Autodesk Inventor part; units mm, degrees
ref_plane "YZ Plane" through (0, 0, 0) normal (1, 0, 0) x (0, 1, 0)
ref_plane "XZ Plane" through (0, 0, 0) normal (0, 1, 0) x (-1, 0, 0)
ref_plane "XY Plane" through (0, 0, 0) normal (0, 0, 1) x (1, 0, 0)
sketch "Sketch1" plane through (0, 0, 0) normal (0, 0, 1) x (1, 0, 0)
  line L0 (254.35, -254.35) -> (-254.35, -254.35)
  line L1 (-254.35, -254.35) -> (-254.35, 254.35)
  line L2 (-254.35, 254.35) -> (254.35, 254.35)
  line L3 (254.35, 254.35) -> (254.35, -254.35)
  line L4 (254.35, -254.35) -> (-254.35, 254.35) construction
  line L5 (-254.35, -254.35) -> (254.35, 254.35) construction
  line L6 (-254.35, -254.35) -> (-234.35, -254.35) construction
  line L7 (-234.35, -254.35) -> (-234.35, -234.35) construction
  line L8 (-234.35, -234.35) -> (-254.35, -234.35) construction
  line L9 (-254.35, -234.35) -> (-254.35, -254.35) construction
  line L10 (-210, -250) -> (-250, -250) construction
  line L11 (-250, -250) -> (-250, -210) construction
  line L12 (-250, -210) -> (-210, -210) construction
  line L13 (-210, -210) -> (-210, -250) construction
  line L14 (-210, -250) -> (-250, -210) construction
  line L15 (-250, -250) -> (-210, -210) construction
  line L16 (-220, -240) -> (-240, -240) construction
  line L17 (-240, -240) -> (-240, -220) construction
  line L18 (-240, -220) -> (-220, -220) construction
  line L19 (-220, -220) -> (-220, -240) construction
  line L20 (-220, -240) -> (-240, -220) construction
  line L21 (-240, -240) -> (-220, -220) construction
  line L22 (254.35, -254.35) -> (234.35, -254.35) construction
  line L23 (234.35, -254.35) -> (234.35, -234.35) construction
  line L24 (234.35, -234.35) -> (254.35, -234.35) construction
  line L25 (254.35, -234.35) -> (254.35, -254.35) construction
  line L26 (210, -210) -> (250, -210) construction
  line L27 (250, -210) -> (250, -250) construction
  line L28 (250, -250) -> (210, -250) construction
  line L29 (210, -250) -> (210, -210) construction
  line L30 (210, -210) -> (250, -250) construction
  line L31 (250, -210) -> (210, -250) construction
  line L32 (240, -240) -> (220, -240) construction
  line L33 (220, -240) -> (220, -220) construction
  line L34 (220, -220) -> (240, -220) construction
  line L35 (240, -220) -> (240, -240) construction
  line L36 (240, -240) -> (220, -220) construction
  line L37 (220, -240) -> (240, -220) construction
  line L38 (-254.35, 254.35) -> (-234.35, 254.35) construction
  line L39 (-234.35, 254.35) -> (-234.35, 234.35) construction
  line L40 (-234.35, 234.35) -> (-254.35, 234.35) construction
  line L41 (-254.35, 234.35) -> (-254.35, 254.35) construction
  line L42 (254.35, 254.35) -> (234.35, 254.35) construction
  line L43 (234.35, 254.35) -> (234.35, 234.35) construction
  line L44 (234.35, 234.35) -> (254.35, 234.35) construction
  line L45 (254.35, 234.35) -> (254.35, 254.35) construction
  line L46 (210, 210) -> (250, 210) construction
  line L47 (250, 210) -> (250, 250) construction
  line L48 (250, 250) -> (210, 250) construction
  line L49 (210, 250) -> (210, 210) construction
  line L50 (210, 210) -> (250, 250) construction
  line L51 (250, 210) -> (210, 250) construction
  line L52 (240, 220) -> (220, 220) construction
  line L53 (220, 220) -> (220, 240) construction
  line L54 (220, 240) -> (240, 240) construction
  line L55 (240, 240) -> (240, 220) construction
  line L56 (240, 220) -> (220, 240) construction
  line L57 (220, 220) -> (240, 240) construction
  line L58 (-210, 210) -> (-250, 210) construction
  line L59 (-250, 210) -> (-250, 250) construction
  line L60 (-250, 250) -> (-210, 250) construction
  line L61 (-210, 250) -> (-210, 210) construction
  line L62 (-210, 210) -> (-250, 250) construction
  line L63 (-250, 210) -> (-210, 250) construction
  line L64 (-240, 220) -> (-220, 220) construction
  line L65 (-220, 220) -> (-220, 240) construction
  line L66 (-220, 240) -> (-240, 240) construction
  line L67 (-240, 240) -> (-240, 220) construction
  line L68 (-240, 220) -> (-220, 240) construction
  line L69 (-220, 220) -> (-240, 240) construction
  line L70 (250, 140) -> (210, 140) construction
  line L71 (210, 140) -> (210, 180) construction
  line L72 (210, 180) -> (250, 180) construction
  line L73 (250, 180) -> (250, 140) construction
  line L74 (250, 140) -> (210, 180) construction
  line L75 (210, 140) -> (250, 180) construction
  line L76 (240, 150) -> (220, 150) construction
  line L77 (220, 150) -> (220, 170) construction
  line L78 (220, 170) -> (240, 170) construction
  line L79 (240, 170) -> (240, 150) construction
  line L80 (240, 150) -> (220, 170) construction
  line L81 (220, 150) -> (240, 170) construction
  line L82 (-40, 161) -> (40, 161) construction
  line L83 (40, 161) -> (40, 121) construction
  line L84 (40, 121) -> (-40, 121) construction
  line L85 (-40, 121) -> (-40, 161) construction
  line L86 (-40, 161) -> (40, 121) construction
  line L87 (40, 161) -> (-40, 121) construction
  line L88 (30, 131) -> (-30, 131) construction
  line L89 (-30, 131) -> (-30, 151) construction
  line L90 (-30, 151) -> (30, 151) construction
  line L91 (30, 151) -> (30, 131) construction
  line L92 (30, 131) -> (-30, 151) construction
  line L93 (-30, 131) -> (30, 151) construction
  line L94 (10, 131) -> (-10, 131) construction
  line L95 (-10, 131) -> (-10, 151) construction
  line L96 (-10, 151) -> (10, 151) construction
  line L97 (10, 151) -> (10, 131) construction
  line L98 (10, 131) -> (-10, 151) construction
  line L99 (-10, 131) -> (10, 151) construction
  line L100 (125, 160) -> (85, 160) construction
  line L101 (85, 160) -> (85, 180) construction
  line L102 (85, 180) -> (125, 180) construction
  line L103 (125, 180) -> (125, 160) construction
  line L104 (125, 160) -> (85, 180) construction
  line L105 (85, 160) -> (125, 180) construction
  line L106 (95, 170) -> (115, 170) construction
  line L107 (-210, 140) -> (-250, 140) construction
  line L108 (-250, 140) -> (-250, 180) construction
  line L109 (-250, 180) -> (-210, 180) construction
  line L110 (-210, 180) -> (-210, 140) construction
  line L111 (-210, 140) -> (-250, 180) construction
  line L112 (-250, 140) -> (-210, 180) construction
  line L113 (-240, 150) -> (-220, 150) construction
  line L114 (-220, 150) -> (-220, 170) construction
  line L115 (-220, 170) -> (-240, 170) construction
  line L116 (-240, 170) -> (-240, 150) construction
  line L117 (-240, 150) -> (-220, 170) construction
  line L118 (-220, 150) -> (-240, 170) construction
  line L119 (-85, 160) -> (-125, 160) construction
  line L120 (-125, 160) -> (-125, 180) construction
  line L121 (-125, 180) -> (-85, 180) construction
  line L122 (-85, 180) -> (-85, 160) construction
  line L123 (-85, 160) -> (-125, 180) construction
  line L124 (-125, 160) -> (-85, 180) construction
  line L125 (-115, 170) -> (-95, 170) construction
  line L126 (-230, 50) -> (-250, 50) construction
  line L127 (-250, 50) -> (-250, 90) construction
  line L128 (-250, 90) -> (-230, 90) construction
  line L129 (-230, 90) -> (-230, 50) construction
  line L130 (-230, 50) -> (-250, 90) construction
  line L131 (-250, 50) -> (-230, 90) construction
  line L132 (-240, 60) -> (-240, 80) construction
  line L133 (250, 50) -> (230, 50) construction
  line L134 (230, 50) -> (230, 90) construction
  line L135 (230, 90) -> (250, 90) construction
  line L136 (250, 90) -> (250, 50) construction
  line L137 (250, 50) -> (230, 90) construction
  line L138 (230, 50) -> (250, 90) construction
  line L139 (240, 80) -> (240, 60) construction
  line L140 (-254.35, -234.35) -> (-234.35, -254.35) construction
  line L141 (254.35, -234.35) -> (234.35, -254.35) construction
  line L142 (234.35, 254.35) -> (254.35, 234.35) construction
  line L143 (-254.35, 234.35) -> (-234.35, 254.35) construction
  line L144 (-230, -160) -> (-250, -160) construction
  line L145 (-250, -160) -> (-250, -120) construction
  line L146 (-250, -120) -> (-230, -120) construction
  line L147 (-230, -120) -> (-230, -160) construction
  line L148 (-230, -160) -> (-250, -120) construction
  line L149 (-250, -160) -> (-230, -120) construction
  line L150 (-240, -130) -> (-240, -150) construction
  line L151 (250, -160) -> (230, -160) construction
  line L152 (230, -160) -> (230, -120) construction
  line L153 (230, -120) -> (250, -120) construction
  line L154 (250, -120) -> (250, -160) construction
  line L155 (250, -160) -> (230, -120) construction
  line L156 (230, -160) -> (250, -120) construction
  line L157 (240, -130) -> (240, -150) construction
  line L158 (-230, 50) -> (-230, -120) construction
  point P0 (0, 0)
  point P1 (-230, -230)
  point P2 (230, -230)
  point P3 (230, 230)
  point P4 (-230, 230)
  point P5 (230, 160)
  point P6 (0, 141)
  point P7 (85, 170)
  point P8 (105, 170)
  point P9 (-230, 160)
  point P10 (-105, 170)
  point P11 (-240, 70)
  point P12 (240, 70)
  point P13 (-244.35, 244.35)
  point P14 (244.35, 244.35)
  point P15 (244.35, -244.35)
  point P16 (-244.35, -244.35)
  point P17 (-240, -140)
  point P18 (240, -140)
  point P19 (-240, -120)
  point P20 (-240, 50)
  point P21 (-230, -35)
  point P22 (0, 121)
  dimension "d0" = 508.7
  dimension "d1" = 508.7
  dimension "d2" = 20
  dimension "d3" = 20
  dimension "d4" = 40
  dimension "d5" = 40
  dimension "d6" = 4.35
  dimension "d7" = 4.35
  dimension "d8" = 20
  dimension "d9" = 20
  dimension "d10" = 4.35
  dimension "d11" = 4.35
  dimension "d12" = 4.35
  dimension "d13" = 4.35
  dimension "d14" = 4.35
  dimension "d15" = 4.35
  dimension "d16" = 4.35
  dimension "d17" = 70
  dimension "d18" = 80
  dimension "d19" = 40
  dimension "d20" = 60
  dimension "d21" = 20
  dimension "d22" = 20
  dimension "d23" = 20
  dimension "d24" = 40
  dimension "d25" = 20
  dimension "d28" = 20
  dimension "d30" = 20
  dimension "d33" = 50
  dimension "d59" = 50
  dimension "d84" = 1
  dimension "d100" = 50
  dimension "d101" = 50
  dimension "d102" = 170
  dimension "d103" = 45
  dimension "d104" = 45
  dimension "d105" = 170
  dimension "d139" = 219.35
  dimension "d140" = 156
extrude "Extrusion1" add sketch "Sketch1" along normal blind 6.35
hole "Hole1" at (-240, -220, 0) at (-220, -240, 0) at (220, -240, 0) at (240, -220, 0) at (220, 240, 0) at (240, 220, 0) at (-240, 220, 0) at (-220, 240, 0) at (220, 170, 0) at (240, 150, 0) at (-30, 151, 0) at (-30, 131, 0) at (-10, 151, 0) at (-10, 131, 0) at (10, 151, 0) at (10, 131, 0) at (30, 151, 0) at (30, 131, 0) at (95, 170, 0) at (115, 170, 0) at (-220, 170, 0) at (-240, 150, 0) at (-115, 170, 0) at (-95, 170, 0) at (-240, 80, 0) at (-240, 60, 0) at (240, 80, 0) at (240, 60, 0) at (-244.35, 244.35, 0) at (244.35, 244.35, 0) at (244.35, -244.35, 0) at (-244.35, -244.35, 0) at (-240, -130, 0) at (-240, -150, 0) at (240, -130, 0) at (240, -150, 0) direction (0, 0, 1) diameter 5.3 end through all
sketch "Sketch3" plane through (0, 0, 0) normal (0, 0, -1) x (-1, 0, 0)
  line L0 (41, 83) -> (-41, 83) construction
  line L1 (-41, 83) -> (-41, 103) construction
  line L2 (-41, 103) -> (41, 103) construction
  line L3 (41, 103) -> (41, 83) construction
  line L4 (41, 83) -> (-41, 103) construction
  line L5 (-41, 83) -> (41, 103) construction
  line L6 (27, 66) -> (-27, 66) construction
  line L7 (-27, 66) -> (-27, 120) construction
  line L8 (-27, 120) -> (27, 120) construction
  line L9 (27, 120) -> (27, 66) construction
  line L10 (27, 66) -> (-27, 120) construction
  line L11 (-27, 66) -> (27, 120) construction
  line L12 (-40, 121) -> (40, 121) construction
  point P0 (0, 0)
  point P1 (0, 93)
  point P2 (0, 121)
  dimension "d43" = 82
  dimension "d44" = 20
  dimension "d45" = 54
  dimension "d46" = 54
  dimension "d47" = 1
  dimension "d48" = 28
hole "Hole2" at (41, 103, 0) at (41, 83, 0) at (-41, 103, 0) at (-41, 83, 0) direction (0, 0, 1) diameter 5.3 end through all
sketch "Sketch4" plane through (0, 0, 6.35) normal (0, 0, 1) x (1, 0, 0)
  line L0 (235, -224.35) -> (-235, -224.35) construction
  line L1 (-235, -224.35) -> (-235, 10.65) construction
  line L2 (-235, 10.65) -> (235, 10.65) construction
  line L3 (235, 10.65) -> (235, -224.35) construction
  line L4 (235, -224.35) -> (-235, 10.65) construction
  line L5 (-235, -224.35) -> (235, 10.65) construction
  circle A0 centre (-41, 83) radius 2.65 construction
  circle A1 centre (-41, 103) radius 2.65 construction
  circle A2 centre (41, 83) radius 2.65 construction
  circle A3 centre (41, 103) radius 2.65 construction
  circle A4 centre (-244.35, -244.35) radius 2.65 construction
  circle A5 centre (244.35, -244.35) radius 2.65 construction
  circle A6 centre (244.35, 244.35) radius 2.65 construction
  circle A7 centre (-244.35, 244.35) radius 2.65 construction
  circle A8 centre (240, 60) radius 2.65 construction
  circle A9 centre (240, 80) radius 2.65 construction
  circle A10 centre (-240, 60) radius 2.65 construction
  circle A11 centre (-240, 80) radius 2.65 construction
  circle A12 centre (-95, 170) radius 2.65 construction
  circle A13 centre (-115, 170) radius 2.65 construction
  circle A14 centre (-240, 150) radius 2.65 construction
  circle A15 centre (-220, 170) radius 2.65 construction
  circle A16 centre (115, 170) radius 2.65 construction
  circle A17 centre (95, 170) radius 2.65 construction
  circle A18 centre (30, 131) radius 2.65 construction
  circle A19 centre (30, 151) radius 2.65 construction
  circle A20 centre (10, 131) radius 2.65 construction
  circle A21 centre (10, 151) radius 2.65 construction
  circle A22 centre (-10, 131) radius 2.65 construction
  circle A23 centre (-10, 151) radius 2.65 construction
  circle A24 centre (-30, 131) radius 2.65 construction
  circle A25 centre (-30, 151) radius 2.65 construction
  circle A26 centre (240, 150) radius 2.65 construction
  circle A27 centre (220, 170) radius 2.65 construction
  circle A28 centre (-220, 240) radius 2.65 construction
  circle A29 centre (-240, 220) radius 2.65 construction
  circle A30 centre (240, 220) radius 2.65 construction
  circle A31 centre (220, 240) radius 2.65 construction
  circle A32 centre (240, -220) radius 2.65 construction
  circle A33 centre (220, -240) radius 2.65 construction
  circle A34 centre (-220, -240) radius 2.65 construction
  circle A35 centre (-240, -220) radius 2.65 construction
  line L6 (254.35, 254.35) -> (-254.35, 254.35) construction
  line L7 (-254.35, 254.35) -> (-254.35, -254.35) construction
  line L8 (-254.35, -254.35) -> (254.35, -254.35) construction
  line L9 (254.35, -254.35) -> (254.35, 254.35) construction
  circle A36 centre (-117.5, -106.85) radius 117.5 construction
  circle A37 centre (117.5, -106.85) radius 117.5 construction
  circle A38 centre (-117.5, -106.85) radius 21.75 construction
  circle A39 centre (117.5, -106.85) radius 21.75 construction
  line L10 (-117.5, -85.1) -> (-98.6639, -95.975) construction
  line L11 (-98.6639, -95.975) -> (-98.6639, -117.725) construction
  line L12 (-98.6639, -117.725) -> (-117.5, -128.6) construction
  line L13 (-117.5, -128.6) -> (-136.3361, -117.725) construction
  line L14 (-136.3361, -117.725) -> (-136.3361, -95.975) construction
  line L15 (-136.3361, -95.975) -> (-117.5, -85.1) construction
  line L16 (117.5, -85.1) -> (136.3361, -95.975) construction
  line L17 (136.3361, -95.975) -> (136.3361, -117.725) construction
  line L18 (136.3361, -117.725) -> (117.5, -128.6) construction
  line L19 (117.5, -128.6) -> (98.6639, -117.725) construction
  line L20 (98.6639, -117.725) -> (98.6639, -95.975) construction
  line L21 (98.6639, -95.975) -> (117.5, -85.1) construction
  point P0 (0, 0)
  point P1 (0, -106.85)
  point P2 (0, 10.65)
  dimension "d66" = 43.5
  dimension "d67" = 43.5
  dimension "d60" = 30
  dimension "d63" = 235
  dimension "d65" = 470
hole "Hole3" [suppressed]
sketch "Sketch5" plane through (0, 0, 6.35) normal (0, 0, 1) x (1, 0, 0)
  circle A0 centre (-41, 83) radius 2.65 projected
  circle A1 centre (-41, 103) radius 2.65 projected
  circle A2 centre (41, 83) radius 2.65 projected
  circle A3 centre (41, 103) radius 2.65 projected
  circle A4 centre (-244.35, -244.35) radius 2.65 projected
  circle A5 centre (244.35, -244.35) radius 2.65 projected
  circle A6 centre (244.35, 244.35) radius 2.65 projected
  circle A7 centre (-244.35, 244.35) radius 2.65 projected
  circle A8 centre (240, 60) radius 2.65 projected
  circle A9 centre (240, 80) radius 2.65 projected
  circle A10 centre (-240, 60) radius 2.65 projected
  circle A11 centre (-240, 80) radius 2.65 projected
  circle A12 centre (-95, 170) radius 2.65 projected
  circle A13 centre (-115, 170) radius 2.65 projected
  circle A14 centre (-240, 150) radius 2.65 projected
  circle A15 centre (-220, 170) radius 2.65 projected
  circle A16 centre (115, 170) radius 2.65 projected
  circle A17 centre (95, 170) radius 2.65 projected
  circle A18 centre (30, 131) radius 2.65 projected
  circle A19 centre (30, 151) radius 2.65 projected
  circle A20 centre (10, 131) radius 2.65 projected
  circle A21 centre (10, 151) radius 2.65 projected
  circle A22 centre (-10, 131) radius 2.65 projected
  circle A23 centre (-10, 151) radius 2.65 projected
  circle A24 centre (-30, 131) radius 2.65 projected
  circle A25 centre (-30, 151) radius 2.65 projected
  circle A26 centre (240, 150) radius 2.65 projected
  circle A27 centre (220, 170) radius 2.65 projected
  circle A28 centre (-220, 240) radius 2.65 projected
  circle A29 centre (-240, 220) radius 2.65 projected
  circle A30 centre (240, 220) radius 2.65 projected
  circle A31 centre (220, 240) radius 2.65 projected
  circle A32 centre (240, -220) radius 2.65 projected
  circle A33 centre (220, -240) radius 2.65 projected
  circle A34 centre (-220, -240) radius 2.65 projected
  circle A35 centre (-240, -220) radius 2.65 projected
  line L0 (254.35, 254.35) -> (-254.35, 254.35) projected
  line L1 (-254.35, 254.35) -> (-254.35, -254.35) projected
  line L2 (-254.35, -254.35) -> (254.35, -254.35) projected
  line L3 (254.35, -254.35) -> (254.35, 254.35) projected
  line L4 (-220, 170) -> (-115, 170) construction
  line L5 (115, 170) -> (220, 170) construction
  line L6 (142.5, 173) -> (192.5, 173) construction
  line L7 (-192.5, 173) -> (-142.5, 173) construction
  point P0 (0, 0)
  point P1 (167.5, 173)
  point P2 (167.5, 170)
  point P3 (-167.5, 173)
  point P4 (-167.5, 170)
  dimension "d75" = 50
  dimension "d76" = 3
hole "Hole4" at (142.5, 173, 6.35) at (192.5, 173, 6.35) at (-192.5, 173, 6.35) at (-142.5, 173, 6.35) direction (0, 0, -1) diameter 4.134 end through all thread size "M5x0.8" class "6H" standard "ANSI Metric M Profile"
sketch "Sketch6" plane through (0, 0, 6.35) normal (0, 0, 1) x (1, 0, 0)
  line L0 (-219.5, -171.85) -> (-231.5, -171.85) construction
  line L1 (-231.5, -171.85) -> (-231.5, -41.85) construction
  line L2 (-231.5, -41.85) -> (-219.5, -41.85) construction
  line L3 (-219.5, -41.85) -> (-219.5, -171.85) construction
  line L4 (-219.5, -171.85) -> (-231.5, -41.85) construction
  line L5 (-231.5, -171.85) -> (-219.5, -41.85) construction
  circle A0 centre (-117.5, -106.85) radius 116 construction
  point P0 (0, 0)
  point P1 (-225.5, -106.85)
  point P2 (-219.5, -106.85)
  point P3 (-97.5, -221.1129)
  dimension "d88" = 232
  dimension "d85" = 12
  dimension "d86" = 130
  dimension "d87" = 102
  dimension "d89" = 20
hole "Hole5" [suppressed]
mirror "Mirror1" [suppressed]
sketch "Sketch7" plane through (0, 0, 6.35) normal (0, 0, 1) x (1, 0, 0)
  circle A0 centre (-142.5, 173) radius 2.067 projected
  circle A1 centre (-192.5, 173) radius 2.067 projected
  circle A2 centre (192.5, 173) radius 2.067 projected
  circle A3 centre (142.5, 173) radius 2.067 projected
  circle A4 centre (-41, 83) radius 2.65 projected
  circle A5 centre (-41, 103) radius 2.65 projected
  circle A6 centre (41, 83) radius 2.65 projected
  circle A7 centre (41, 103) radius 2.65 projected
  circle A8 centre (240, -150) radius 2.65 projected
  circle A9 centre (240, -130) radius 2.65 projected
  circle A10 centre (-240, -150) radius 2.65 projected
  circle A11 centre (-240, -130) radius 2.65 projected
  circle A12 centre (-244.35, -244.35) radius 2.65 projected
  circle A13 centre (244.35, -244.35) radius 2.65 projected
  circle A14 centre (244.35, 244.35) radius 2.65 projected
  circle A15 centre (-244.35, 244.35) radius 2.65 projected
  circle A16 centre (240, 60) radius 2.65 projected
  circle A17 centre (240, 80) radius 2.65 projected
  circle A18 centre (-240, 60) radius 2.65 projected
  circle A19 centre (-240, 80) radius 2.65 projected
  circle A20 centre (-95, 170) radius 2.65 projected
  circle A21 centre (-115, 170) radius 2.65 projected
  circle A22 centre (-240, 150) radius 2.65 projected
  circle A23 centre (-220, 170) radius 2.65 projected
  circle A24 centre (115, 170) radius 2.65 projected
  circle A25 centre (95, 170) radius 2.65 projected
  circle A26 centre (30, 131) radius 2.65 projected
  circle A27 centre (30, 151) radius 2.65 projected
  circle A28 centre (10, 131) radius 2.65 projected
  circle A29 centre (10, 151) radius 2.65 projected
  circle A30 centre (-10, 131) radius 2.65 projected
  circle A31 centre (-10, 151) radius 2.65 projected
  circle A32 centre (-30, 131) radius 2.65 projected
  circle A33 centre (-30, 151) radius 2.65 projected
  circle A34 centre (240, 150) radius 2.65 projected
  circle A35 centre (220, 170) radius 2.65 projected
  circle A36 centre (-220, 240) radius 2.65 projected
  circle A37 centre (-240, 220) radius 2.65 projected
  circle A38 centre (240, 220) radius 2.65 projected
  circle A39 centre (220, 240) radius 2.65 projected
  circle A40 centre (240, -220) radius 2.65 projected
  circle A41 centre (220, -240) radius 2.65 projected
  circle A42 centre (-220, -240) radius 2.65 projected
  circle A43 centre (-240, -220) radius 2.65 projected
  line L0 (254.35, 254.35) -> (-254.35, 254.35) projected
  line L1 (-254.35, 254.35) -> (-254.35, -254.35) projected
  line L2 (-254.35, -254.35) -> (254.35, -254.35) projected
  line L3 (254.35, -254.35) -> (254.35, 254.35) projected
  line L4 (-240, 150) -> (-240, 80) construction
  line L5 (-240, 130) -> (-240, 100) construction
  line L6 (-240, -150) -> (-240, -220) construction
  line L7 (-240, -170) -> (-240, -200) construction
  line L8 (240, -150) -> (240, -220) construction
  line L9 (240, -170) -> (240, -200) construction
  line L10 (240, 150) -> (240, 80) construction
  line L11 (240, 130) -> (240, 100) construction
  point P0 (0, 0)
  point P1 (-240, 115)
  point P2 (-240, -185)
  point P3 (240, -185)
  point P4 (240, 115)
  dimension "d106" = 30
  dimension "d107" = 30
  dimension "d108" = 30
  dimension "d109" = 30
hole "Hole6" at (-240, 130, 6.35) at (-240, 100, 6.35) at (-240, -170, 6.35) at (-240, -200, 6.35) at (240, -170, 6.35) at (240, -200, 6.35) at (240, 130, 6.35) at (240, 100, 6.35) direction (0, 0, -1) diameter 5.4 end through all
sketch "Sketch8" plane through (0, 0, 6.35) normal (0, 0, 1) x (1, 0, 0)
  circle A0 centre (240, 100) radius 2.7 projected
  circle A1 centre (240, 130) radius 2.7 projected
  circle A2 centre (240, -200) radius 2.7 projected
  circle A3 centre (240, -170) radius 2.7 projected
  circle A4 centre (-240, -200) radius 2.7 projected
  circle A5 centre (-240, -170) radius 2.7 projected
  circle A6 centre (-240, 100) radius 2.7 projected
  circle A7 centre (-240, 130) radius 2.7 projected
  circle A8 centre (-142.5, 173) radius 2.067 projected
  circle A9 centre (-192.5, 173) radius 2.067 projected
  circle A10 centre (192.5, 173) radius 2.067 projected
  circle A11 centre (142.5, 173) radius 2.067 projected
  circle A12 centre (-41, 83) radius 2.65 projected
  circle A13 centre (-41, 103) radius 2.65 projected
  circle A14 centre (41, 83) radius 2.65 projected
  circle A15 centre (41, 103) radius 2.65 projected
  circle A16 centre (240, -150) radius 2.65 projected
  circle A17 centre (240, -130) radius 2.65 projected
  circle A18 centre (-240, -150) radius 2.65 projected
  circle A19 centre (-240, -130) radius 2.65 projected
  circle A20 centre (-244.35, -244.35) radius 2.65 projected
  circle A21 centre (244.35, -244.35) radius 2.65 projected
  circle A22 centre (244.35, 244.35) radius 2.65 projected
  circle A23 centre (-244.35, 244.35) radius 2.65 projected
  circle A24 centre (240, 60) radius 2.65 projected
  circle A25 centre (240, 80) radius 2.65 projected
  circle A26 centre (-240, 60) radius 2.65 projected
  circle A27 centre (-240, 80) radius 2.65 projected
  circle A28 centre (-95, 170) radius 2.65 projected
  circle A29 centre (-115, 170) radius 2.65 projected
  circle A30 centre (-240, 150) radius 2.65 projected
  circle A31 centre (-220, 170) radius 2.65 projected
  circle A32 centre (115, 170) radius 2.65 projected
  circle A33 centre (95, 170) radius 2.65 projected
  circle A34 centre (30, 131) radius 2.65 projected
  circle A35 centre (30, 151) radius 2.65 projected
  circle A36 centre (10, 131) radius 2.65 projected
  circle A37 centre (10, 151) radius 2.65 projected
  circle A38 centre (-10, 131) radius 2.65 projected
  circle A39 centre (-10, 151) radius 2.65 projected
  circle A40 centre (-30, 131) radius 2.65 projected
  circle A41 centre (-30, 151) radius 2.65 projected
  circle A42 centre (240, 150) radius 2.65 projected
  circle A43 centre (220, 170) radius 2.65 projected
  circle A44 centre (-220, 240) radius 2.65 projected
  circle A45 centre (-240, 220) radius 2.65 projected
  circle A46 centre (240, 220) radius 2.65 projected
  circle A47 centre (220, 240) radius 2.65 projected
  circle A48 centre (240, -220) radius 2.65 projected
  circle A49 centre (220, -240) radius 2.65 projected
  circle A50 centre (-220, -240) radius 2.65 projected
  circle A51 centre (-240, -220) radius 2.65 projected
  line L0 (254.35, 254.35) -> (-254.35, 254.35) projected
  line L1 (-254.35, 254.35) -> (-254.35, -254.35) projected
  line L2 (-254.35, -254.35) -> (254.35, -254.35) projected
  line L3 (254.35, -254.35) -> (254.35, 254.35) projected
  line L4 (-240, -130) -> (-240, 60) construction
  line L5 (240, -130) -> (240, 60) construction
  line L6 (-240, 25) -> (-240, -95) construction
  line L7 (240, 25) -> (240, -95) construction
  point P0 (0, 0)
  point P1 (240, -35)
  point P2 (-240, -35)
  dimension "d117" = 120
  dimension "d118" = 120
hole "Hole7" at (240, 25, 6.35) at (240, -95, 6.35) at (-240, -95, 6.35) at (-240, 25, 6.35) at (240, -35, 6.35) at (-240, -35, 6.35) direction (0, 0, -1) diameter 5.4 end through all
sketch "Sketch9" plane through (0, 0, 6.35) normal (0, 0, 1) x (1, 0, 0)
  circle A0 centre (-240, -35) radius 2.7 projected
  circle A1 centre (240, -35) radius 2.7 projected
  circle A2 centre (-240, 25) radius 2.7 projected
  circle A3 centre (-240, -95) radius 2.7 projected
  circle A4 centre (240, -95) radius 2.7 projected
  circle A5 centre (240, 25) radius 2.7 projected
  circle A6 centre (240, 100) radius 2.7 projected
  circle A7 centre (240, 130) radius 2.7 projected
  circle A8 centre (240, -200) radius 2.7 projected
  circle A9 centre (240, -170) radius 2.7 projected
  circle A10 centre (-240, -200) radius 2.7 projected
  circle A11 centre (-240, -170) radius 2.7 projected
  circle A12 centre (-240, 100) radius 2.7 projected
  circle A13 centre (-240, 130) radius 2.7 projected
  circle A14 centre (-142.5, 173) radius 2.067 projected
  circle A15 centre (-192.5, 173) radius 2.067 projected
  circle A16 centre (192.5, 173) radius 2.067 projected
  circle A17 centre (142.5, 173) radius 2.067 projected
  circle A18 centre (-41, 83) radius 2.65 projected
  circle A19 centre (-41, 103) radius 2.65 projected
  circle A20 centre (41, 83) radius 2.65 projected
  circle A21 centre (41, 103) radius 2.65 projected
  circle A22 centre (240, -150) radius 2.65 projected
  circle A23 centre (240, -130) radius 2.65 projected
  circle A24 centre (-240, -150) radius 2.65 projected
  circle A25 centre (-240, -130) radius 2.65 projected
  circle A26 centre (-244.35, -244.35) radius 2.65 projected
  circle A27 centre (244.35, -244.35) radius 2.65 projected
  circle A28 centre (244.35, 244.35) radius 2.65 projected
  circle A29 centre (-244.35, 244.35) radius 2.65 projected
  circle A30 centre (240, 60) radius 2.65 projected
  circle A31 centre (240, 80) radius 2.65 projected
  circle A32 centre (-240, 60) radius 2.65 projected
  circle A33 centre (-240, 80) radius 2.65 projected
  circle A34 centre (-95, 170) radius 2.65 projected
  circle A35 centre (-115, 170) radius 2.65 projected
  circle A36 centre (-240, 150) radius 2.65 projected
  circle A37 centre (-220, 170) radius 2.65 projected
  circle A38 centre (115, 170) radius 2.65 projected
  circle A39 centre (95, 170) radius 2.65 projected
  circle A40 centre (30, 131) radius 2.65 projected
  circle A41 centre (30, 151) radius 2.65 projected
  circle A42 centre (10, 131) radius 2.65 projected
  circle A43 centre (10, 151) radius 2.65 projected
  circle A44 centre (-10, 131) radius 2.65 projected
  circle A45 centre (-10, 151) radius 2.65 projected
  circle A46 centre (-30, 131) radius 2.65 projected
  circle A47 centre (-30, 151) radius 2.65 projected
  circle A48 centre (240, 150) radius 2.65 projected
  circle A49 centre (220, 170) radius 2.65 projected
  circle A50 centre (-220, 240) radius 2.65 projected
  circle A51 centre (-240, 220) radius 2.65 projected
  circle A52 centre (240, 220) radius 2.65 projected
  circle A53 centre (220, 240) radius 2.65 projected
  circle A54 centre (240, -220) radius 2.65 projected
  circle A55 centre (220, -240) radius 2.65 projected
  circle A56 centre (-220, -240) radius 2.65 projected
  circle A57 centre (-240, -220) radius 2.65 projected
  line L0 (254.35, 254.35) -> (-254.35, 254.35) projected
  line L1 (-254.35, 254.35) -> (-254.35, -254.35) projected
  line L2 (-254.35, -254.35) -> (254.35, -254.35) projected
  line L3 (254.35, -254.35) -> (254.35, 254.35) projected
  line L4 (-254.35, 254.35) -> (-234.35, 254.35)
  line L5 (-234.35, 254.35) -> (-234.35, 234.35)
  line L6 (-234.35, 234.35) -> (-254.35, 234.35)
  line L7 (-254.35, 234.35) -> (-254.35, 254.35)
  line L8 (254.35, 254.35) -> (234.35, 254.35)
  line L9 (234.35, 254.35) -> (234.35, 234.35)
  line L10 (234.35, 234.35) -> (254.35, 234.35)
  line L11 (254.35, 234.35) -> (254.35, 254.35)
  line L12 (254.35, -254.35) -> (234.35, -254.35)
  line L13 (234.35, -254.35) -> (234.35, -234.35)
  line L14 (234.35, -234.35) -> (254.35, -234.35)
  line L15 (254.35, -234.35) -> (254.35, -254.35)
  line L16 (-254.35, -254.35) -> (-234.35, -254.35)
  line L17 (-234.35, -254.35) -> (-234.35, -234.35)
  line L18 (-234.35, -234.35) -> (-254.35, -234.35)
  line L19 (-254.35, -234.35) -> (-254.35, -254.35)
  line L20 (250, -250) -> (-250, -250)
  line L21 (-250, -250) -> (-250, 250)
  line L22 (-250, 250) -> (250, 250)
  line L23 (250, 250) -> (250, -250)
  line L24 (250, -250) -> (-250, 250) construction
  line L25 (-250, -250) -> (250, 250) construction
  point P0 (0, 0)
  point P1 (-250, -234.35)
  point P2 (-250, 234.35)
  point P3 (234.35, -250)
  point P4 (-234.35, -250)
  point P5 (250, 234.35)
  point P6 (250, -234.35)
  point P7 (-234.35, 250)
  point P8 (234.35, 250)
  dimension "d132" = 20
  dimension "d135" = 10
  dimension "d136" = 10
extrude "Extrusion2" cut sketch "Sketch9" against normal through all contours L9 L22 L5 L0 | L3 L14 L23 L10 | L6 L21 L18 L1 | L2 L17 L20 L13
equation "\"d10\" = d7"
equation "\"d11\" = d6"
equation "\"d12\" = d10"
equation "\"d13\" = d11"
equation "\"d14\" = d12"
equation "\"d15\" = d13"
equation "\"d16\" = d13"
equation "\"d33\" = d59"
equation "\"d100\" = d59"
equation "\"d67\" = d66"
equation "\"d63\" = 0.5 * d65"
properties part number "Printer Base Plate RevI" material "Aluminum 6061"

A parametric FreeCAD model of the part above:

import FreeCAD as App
import Part
import Sketcher


def add_polygon(sketch, points):
    """Adds a closed chain of lines whose ends are joined by coincident constraints."""
    first, n = sketch.GeometryCount, len(points)
    for a, b in zip(points, points[1:] + points[:1]):
        sketch.addGeometry(Part.LineSegment(App.Vector(*a, 0), App.Vector(*b, 0)), False)
    for i in range(n):
        sketch.addConstraint(Sketcher.Constraint("Coincident", first + i, 2, first + (i + 1) % n, 1))

doc = App.newDocument("Part")
body = doc.addObject("PartDesign::Body", "Body")

sketch1 = body.newObject("Sketcher::SketchObject", "Sketch")
sketch1.AttachmentSupport = (doc.getObject("XY_Plane"), [""])
sketch1.MapMode = "FlatFace"
add_polygon(sketch1, [(-254, -254), (254, -254), (254, 254), (-254, 254)])
sketch1.addConstraint([
    Sketcher.Constraint("Horizontal", 0),
    Sketcher.Constraint("Vertical", 1),
    Sketcher.Constraint("Horizontal", 2),
    Sketcher.Constraint("Vertical", 3),
    Sketcher.Constraint("Symmetric", 0, 2, 2, 2, -1, 1),
    Sketcher.Constraint("Equal", 2, 1),
    Sketcher.Constraint("DistanceX", 0, 1, 0, 2, 508.7),
])
pad1 = body.newObject("PartDesign::Pad", "Pad")
pad1.Profile = sketch1
pad1.Length = 6.35

sketch2 = body.newObject("Sketcher::SketchObject", "Sketch001")
sketch2.AttachmentSupport = (doc.getObject("XY_Plane"), [""])
sketch2.MapMode = "FlatFace"
sketch2.addGeometry([
    Part.Circle(App.Vector(-240, -220, 0), App.Vector(0, 0, 1), 2.6),
    Part.Circle(App.Vector(-220, -240, 0), App.Vector(0, 0, 1), 2.6),
    Part.Circle(App.Vector(220, -240, 0), App.Vector(0, 0, 1), 2.6),
    Part.Circle(App.Vector(240, -220, 0), App.Vector(0, 0, 1), 2.6),
    Part.Circle(App.Vector(220, 240, 0), App.Vector(0, 0, 1), 2.6),
    Part.Circle(App.Vector(240, 220, 0), App.Vector(0, 0, 1), 2.6),
    Part.Circle(App.Vector(-240, 220, 0), App.Vector(0, 0, 1), 2.6),
    Part.Circle(App.Vector(-220, 240, 0), App.Vector(0, 0, 1), 2.6),
    Part.Circle(App.Vector(220, 170, 0), App.Vector(0, 0, 1), 2.6),
    Part.Circle(App.Vector(240, 150, 0), App.Vector(0, 0, 1), 2.6),
    Part.Circle(App.Vector(-30, 151, 0), App.Vector(0, 0, 1), 2.6),
    Part.Circle(App.Vector(-30, 131, 0), App.Vector(0, 0, 1), 2.6),
    Part.Circle(App.Vector(-10, 151, 0), App.Vector(0, 0, 1), 2.6),
    Part.Circle(App.Vector(-10, 131, 0), App.Vector(0, 0, 1), 2.6),
    Part.Circle(App.Vector(10, 151, 0), App.Vector(0, 0, 1), 2.6),
    Part.Circle(App.Vector(10, 131, 0), App.Vector(0, 0, 1), 2.6),
    Part.Circle(App.Vector(30, 151, 0), App.Vector(0, 0, 1), 2.6),
    Part.Circle(App.Vector(30, 131, 0), App.Vector(0, 0, 1), 2.6),
    Part.Circle(App.Vector(95, 170, 0), App.Vector(0, 0, 1), 2.6),
    Part.Circle(App.Vector(115, 170, 0), App.Vector(0, 0, 1), 2.6),
    Part.Circle(App.Vector(-220, 170, 0), App.Vector(0, 0, 1), 2.6),
    Part.Circle(App.Vector(-240, 150, 0), App.Vector(0, 0, 1), 2.6),
    Part.Circle(App.Vector(-115, 170, 0), App.Vector(0, 0, 1), 2.6),
    Part.Circle(App.Vector(-95, 170, 0), App.Vector(0, 0, 1), 2.6),
    Part.Circle(App.Vector(-240, 80, 0), App.Vector(0, 0, 1), 2.6),
    Part.Circle(App.Vector(-240, 60, 0), App.Vector(0, 0, 1), 2.6),
    Part.Circle(App.Vector(240, 80, 0), App.Vector(0, 0, 1), 2.6),
    Part.Circle(App.Vector(240, 60, 0), App.Vector(0, 0, 1), 2.6),
    Part.Circle(App.Vector(-244.3, 244.3, 0), App.Vector(0, 0, 1), 2.6),
    Part.Circle(App.Vector(244.3, 244.3, 0), App.Vector(0, 0, 1), 2.6),
    Part.Circle(App.Vector(244.3, -244.3, 0), App.Vector(0, 0, 1), 2.6),
    Part.Circle(App.Vector(-244.3, -244.3, 0), App.Vector(0, 0, 1), 2.6),
    Part.Circle(App.Vector(-240, -130, 0), App.Vector(0, 0, 1), 2.6),
    Part.Circle(App.Vector(-240, -150, 0), App.Vector(0, 0, 1), 2.6),
    Part.Circle(App.Vector(240, -130, 0), App.Vector(0, 0, 1), 2.6),
    Part.Circle(App.Vector(240, -150, 0), App.Vector(0, 0, 1), 2.6),
], False)
sketch2.addConstraint([
    Sketcher.Constraint("Equal", 0, 1),
    Sketcher.Constraint("Equal", 1, 2),
    Sketcher.Constraint("Equal", 2, 3),
    Sketcher.Constraint("Equal", 3, 4),
    Sketcher.Constraint("Equal", 4, 5),
    Sketcher.Constraint("Equal", 5, 6),
    Sketcher.Constraint("Equal", 6, 7),
    Sketcher.Constraint("Equal", 7, 8),
    Sketcher.Constraint("Equal", 8, 9),
    Sketcher.Constraint("Equal", 9, 10),
    Sketcher.Constraint("Equal", 10, 11),
    Sketcher.Constraint("Equal", 11, 12),
    Sketcher.Constraint("Equal", 12, 13),
    Sketcher.Constraint("Equal", 13, 14),
    Sketcher.Constraint("Equal", 14, 15),
    Sketcher.Constraint("Equal", 15, 16),
    Sketcher.Constraint("Equal", 16, 17),
    Sketcher.Constraint("Equal", 17, 18),
    Sketcher.Constraint("Equal", 18, 19),
    Sketcher.Constraint("Equal", 19, 20),
    Sketcher.Constraint("Equal", 20, 21),
    Sketcher.Constraint("Equal", 21, 22),
    Sketcher.Constraint("Equal", 22, 23),
    Sketcher.Constraint("Equal", 23, 24),
    Sketcher.Constraint("Equal", 24, 25),
    Sketcher.Constraint("Equal", 25, 26),
    Sketcher.Constraint("Equal", 26, 27),
    Sketcher.Constraint("Equal", 27, 28),
    Sketcher.Constraint("Equal", 28, 29),
    Sketcher.Constraint("Equal", 29, 30),
    Sketcher.Constraint("Equal", 30, 31),
    Sketcher.Constraint("Equal", 31, 32),
    Sketcher.Constraint("Equal", 32, 33),
    Sketcher.Constraint("Equal", 33, 34),
    Sketcher.Constraint("Equal", 34, 35),
    Sketcher.Constraint("Symmetric", 1, 3, 4, 3, -1, 1),
    Sketcher.Constraint("Symmetric", 0, 3, 5, 3, -1, 1),
    Sketcher.Constraint("Symmetric", 3, 3, 6, 3, -1, 1),
    Sketcher.Constraint("Symmetric", 2, 3, 7, 3, -1, 1),
    Sketcher.Constraint("Symmetric", 28, 3, 30, 3, -1, 1),
    Sketcher.Constraint("Symmetric", 29, 3, 31, 3, -1, 1),
    Sketcher.Constraint("Symmetric", 9, 3, 33, 3, -1, 1),
    Sketcher.Constraint("Symmetric", 21, 3, 35, 3, -1, 1),
    Sketcher.Constraint("Symmetric", 1, 3, 2, 3, -2),
    Sketcher.Constraint("Symmetric", 0, 3, 3, 3, -2),
    Sketcher.Constraint("Symmetric", 12, 3, 14, 3, -2),
    Sketcher.Constraint("Symmetric", 13, 3, 15, 3, -2),
    Sketcher.Constraint("Symmetric", 10, 3, 16, 3, -2),
    Sketcher.Constraint("Symmetric", 11, 3, 17, 3, -2),
    Sketcher.Constraint("Symmetric", 8, 3, 20, 3, -2),
    Sketcher.Constraint("Symmetric", 9, 3, 21, 3, -2),
    Sketcher.Constraint("Symmetric", 19, 3, 22, 3, -2),
    Sketcher.Constraint("Symmetric", 18, 3, 23, 3, -2),
    Sketcher.Constraint("Symmetric", 24, 3, 26, 3, -2),
    Sketcher.Constraint("Symmetric", 25, 3, 27, 3, -2),
    Sketcher.Constraint("Symmetric", 28, 3, 29, 3, -2),
    Sketcher.Constraint("Symmetric", 32, 3, 34, 3, -2),
    Sketcher.Constraint("Horizontal", 10, 3, 12, 3),
    Sketcher.Constraint("Horizontal", 11, 3, 13, 3),
    Sketcher.Constraint("Horizontal", 8, 3, 18, 3),
    Sketcher.Constraint("Horizontal", 18, 3, 19, 3),
    Sketcher.Constraint("Vertical", 4, 3, 8, 3),
    Sketcher.Constraint("Vertical", 5, 3, 9, 3),
    Sketcher.Constraint("Vertical", 10, 3, 11, 3),
    Sketcher.Constraint("Vertical", 12, 3, 13, 3),
    Sketcher.Constraint("Vertical", 21, 3, 24, 3),
    Sketcher.Constraint("Vertical", 24, 3, 25, 3),
    Sketcher.Constraint("Vertical", 25, 3, 32, 3),
    Sketcher.Constraint("Diameter", 0, 5.3),
    Sketcher.Constraint("DistanceX", 0, 3, -1, 1, 240.0),
    Sketcher.Constraint("DistanceY", 0, 3, -1, 1, 220.0),
    Sketcher.Constraint("DistanceX", 1, 3, -1, 1, 220.0),
    Sketcher.Constraint("DistanceY", 1, 3, -1, 1, 240.0),
    Sketcher.Constraint("DistanceY", -1, 1, 8, 3, 170.0),
    Sketcher.Constraint("DistanceY", -1, 1, 9, 3, 150.0),
    Sketcher.Constraint("DistanceX", 10, 3, -1, 1, 30.0),
    Sketcher.Constraint("DistanceY", -1, 1, 10, 3, 151.0),
    Sketcher.Constraint("DistanceY", -1, 1, 11, 3, 131.0),
    Sketcher.Constraint("DistanceX", 12, 3, -1, 1, 10.0),
    Sketcher.Constraint("DistanceX", -1, 1, 18, 3, 95.0),
    Sketcher.Constraint("DistanceX", -1, 1, 19, 3, 115.0),
    Sketcher.Constraint("DistanceY", -1, 1, 24, 3, 80.0),
    Sketcher.Constraint("DistanceY", -1, 1, 25, 3, 60.0),
    Sketcher.Constraint("DistanceY", 32, 3, -1, 1, 130.0),
    Sketcher.Constraint("DistanceX", 28, 3, -1, 1, 244.35),
    Sketcher.Constraint("DistanceY", -1, 1, 28, 3, 244.35),
])
doc.recompute()
hole = body.newObject("PartDesign::Hole", "Hole")
hole.Profile = sketch2
hole.ThreadType = "None"
hole.Diameter = 5.3
hole.DepthType = "ThroughAll"
hole.Reversed = True

sketch3 = body.newObject("Sketcher::SketchObject", "Sketch002")
sketch3.AttachmentSupport = (doc.getObject("XY_Plane"), [""])
sketch3.MapMode = "FlatFace"
sketch3.addGeometry([
    Part.Circle(App.Vector(41, 103, 0), App.Vector(0, 0, 1), 2.6),
    Part.Circle(App.Vector(41, 83, 0), App.Vector(0, 0, 1), 2.6),
    Part.Circle(App.Vector(-41, 103, 0), App.Vector(0, 0, 1), 2.6),
    Part.Circle(App.Vector(-41, 83, 0), App.Vector(0, 0, 1), 2.6),
], False)
sketch3.addConstraint([
    Sketcher.Constraint("Equal", 0, 1),
    Sketcher.Constraint("Equal", 1, 2),
    Sketcher.Constraint("Equal", 2, 3),
    Sketcher.Constraint("Symmetric", 0, 3, 2, 3, -2),
    Sketcher.Constraint("Symmetric", 1, 3, 3, 3, -2),
    Sketcher.Constraint("Vertical", 0, 3, 1, 3),
    Sketcher.Constraint("Diameter", 0, 5.3),
    Sketcher.Constraint("DistanceX", -1, 1, 0, 3, 41.0),
    Sketcher.Constraint("DistanceY", -1, 1, 0, 3, 103.0),
    Sketcher.Constraint("DistanceY", -1, 1, 1, 3, 83.0),
])
doc.recompute()
hole2 = body.newObject("PartDesign::Hole", "Hole001")
hole2.Profile = sketch3
hole2.ThreadType = "None"
hole2.Diameter = 5.3
hole2.DepthType = "ThroughAll"
hole2.Reversed = True

sketch4 = body.newObject("Sketcher::SketchObject", "Sketch003")
sketch4.AttachmentSupport = (doc.getObject("XY_Plane"), [""])
sketch4.MapMode = "FlatFace"
sketch4.AttachmentOffset = App.Placement(App.Vector(0, 0, 6.35), App.Rotation())
sketch4.addGeometry([
    Part.Circle(App.Vector(142.5, 173, 0), App.Vector(0, 0, 1), 2.1),
    Part.Circle(App.Vector(192.5, 173, 0), App.Vector(0, 0, 1), 2.1),
    Part.Circle(App.Vector(-192.5, 173, 0), App.Vector(0, 0, 1), 2.1),
    Part.Circle(App.Vector(-142.5, 173, 0), App.Vector(0, 0, 1), 2.1),
], False)
sketch4.addConstraint([
    Sketcher.Constraint("Equal", 0, 1),
    Sketcher.Constraint("Equal", 1, 2),
    Sketcher.Constraint("Equal", 2, 3),
    Sketcher.Constraint("Symmetric", 1, 3, 2, 3, -2),
    Sketcher.Constraint("Symmetric", 0, 3, 3, 3, -2),
    Sketcher.Constraint("Horizontal", 0, 3, 1, 3),
    Sketcher.Constraint("Diameter", 0, 4.134),
    Sketcher.Constraint("DistanceY", -1, 1, 0, 3, 173.0),
    Sketcher.Constraint("DistanceX", 0, 3, 1, 3, 50.0),
    Sketcher.Constraint("DistanceX", 2, 3, 0, 3, 335.0),
])
doc.recompute()
hole3 = body.newObject("PartDesign::Hole", "Hole002")
hole3.Profile = sketch4
hole3.ThreadType = "None"
hole3.Diameter = 4.134
hole3.DepthType = "ThroughAll"

sketch5 = body.newObject("Sketcher::SketchObject", "Sketch004")
sketch5.AttachmentSupport = (doc.getObject("XY_Plane"), [""])
sketch5.MapMode = "FlatFace"
sketch5.AttachmentOffset = App.Placement(App.Vector(0, 0, 6.35), App.Rotation())
sketch5.addGeometry([
    Part.Circle(App.Vector(-240, 130, 0), App.Vector(0, 0, 1), 2.7),
    Part.Circle(App.Vector(-240, 100, 0), App.Vector(0, 0, 1), 2.7),
    Part.Circle(App.Vector(-240, -170, 0), App.Vector(0, 0, 1), 2.7),
    Part.Circle(App.Vector(-240, -200, 0), App.Vector(0, 0, 1), 2.7),
    Part.Circle(App.Vector(240, -170, 0), App.Vector(0, 0, 1), 2.7),
    Part.Circle(App.Vector(240, -200, 0), App.Vector(0, 0, 1), 2.7),
    Part.Circle(App.Vector(240, 130, 0), App.Vector(0, 0, 1), 2.7),
    Part.Circle(App.Vector(240, 100, 0), App.Vector(0, 0, 1), 2.7),
], False)
sketch5.addConstraint([
    Sketcher.Constraint("Equal", 0, 1),
    Sketcher.Constraint("Equal", 1, 2),
    Sketcher.Constraint("Equal", 2, 3),
    Sketcher.Constraint("Equal", 3, 4),
    Sketcher.Constraint("Equal", 4, 5),
    Sketcher.Constraint("Equal", 5, 6),
    Sketcher.Constraint("Equal", 6, 7),
    Sketcher.Constraint("Symmetric", 2, 3, 4, 3, -2),
    Sketcher.Constraint("Symmetric", 3, 3, 5, 3, -2),
    Sketcher.Constraint("Symmetric", 0, 3, 6, 3, -2),
    Sketcher.Constraint("Symmetric", 1, 3, 7, 3, -2),
    Sketcher.Constraint("Vertical", 0, 3, 1, 3),
    Sketcher.Constraint("Vertical", 1, 3, 2, 3),
    Sketcher.Constraint("Vertical", 2, 3, 3, 3),
    Sketcher.Constraint("Diameter", 0, 5.4),
    Sketcher.Constraint("DistanceX", 0, 3, -1, 1, 240.0),
    Sketcher.Constraint("DistanceY", -1, 1, 0, 3, 130.0),
    Sketcher.Constraint("DistanceY", -1, 1, 1, 3, 100.0),
    Sketcher.Constraint("DistanceY", 2, 3, -1, 1, 170.0),
    Sketcher.Constraint("DistanceY", 3, 3, -1, 1, 200.0),
])
doc.recompute()
hole4 = body.newObject("PartDesign::Hole", "Hole003")
hole4.Profile = sketch5
hole4.ThreadType = "None"
hole4.Diameter = 5.4
hole4.DepthType = "ThroughAll"

sketch6 = body.newObject("Sketcher::SketchObject", "Sketch005")
sketch6.AttachmentSupport = (doc.getObject("XY_Plane"), [""])
sketch6.MapMode = "FlatFace"
sketch6.AttachmentOffset = App.Placement(App.Vector(0, 0, 6.35), App.Rotation())
sketch6.addGeometry([
    Part.Circle(App.Vector(240, 25, 0), App.Vector(0, 0, 1), 2.7),
    Part.Circle(App.Vector(240, -95, 0), App.Vector(0, 0, 1), 2.7),
    Part.Circle(App.Vector(-240, -95, 0), App.Vector(0, 0, 1), 2.7),
    Part.Circle(App.Vector(-240, 25, 0), App.Vector(0, 0, 1), 2.7),
    Part.Circle(App.Vector(240, -35, 0), App.Vector(0, 0, 1), 2.7),
    Part.Circle(App.Vector(-240, -35, 0), App.Vector(0, 0, 1), 2.7),
], False)
sketch6.addConstraint([
    Sketcher.Constraint("Equal", 0, 1),
    Sketcher.Constraint("Equal", 1, 2),
    Sketcher.Constraint("Equal", 2, 3),
    Sketcher.Constraint("Equal", 3, 4),
    Sketcher.Constraint("Equal", 4, 5),
    Sketcher.Constraint("Symmetric", 1, 3, 2, 3, -2),
    Sketcher.Constraint("Symmetric", 0, 3, 3, 3, -2),
    Sketcher.Constraint("Symmetric", 4, 3, 5, 3, -2),
    Sketcher.Constraint("Vertical", 0, 3, 1, 3),
    Sketcher.Constraint("Vertical", 1, 3, 4, 3),
    Sketcher.Constraint("Diameter", 0, 5.4),
    Sketcher.Constraint("DistanceX", -1, 1, 0, 3, 240.0),
    Sketcher.Constraint("DistanceY", -1, 1, 0, 3, 25.0),
    Sketcher.Constraint("DistanceY", 1, 3, -1, 1, 95.0),
    Sketcher.Constraint("DistanceY", 4, 3, -1, 1, 35.0),
])
doc.recompute()
hole5 = body.newObject("PartDesign::Hole", "Hole004")
hole5.Profile = sketch6
hole5.ThreadType = "None"
hole5.Diameter = 5.4
hole5.DepthType = "ThroughAll"

sketch7 = body.newObject("Sketcher::SketchObject", "Sketch006")
sketch7.AttachmentSupport = (doc.getObject("XY_Plane"), [""])
sketch7.MapMode = "FlatFace"
sketch7.AttachmentOffset = App.Placement(App.Vector(0, 0, 6.35), App.Rotation())
add_polygon(sketch7, [(234.3, 250), (234.3, 254.3), (-234.3, 254.3), (-234.3, 250)])
add_polygon(sketch7, [(254.3, -234.3), (254.3, 234.3), (250, 234.3), (250, -234.3)])
add_polygon(sketch7, [(-250, 234.3), (-254.3, 234.3), (-254.3, -234.3), (-250, -234.3)])
add_polygon(sketch7, [(-234.3, -254.3), (234.3, -254.3), (234.3, -250), (-234.3, -250)])
sketch7.addConstraint([
    Sketcher.Constraint("Vertical", 0),
    Sketcher.Constraint("Horizontal", 1),
    Sketcher.Constraint("Vertical", 2),
    Sketcher.Constraint("Horizontal", 3),
    Sketcher.Constraint("Vertical", 4),
    Sketcher.Constraint("Horizontal", 5),
    Sketcher.Constraint("Vertical", 6),
    Sketcher.Constraint("Horizontal", 7),
    Sketcher.Constraint("Horizontal", 8),
    Sketcher.Constraint("Vertical", 9),
    Sketcher.Constraint("Horizontal", 10),
    Sketcher.Constraint("Vertical", 11),
    Sketcher.Constraint("Horizontal", 12),
    Sketcher.Constraint("Vertical", 13),
    Sketcher.Constraint("Horizontal", 14),
    Sketcher.Constraint("Vertical", 15),
    Sketcher.Constraint("Symmetric", 7, 2, 8, 2, -1, 1),
    Sketcher.Constraint("Symmetric", 5, 2, 10, 2, -1, 1),
    Sketcher.Constraint("Symmetric", 1, 2, 12, 2, -1, 1),
    Sketcher.Constraint("Symmetric", 3, 2, 14, 2, -1, 1),
    Sketcher.Constraint("Horizontal", 5, 2, 8, 2),
    Sketcher.Constraint("Vertical", 3, 2, 12, 2),
    Sketcher.Constraint("Equal", 10, 0),
    Sketcher.Constraint("Equal", 14, 4),
    Sketcher.Constraint("DistanceX", 3, 2, 4, 2, 20.0),
    Sketcher.Constraint("DistanceY", 4, 2, 0, 2, 20.0),
    Sketcher.Constraint("DistanceX", 1, 2, 1, 1, 468.7),
    Sketcher.Constraint("DistanceY", -1, 1, 2, 2, 250.0),
])
pocket1 = body.newObject("PartDesign::Pocket", "Pocket")
pocket1.Profile = sketch7
pocket1.Type = "ThroughAll"

doc.recompute()
